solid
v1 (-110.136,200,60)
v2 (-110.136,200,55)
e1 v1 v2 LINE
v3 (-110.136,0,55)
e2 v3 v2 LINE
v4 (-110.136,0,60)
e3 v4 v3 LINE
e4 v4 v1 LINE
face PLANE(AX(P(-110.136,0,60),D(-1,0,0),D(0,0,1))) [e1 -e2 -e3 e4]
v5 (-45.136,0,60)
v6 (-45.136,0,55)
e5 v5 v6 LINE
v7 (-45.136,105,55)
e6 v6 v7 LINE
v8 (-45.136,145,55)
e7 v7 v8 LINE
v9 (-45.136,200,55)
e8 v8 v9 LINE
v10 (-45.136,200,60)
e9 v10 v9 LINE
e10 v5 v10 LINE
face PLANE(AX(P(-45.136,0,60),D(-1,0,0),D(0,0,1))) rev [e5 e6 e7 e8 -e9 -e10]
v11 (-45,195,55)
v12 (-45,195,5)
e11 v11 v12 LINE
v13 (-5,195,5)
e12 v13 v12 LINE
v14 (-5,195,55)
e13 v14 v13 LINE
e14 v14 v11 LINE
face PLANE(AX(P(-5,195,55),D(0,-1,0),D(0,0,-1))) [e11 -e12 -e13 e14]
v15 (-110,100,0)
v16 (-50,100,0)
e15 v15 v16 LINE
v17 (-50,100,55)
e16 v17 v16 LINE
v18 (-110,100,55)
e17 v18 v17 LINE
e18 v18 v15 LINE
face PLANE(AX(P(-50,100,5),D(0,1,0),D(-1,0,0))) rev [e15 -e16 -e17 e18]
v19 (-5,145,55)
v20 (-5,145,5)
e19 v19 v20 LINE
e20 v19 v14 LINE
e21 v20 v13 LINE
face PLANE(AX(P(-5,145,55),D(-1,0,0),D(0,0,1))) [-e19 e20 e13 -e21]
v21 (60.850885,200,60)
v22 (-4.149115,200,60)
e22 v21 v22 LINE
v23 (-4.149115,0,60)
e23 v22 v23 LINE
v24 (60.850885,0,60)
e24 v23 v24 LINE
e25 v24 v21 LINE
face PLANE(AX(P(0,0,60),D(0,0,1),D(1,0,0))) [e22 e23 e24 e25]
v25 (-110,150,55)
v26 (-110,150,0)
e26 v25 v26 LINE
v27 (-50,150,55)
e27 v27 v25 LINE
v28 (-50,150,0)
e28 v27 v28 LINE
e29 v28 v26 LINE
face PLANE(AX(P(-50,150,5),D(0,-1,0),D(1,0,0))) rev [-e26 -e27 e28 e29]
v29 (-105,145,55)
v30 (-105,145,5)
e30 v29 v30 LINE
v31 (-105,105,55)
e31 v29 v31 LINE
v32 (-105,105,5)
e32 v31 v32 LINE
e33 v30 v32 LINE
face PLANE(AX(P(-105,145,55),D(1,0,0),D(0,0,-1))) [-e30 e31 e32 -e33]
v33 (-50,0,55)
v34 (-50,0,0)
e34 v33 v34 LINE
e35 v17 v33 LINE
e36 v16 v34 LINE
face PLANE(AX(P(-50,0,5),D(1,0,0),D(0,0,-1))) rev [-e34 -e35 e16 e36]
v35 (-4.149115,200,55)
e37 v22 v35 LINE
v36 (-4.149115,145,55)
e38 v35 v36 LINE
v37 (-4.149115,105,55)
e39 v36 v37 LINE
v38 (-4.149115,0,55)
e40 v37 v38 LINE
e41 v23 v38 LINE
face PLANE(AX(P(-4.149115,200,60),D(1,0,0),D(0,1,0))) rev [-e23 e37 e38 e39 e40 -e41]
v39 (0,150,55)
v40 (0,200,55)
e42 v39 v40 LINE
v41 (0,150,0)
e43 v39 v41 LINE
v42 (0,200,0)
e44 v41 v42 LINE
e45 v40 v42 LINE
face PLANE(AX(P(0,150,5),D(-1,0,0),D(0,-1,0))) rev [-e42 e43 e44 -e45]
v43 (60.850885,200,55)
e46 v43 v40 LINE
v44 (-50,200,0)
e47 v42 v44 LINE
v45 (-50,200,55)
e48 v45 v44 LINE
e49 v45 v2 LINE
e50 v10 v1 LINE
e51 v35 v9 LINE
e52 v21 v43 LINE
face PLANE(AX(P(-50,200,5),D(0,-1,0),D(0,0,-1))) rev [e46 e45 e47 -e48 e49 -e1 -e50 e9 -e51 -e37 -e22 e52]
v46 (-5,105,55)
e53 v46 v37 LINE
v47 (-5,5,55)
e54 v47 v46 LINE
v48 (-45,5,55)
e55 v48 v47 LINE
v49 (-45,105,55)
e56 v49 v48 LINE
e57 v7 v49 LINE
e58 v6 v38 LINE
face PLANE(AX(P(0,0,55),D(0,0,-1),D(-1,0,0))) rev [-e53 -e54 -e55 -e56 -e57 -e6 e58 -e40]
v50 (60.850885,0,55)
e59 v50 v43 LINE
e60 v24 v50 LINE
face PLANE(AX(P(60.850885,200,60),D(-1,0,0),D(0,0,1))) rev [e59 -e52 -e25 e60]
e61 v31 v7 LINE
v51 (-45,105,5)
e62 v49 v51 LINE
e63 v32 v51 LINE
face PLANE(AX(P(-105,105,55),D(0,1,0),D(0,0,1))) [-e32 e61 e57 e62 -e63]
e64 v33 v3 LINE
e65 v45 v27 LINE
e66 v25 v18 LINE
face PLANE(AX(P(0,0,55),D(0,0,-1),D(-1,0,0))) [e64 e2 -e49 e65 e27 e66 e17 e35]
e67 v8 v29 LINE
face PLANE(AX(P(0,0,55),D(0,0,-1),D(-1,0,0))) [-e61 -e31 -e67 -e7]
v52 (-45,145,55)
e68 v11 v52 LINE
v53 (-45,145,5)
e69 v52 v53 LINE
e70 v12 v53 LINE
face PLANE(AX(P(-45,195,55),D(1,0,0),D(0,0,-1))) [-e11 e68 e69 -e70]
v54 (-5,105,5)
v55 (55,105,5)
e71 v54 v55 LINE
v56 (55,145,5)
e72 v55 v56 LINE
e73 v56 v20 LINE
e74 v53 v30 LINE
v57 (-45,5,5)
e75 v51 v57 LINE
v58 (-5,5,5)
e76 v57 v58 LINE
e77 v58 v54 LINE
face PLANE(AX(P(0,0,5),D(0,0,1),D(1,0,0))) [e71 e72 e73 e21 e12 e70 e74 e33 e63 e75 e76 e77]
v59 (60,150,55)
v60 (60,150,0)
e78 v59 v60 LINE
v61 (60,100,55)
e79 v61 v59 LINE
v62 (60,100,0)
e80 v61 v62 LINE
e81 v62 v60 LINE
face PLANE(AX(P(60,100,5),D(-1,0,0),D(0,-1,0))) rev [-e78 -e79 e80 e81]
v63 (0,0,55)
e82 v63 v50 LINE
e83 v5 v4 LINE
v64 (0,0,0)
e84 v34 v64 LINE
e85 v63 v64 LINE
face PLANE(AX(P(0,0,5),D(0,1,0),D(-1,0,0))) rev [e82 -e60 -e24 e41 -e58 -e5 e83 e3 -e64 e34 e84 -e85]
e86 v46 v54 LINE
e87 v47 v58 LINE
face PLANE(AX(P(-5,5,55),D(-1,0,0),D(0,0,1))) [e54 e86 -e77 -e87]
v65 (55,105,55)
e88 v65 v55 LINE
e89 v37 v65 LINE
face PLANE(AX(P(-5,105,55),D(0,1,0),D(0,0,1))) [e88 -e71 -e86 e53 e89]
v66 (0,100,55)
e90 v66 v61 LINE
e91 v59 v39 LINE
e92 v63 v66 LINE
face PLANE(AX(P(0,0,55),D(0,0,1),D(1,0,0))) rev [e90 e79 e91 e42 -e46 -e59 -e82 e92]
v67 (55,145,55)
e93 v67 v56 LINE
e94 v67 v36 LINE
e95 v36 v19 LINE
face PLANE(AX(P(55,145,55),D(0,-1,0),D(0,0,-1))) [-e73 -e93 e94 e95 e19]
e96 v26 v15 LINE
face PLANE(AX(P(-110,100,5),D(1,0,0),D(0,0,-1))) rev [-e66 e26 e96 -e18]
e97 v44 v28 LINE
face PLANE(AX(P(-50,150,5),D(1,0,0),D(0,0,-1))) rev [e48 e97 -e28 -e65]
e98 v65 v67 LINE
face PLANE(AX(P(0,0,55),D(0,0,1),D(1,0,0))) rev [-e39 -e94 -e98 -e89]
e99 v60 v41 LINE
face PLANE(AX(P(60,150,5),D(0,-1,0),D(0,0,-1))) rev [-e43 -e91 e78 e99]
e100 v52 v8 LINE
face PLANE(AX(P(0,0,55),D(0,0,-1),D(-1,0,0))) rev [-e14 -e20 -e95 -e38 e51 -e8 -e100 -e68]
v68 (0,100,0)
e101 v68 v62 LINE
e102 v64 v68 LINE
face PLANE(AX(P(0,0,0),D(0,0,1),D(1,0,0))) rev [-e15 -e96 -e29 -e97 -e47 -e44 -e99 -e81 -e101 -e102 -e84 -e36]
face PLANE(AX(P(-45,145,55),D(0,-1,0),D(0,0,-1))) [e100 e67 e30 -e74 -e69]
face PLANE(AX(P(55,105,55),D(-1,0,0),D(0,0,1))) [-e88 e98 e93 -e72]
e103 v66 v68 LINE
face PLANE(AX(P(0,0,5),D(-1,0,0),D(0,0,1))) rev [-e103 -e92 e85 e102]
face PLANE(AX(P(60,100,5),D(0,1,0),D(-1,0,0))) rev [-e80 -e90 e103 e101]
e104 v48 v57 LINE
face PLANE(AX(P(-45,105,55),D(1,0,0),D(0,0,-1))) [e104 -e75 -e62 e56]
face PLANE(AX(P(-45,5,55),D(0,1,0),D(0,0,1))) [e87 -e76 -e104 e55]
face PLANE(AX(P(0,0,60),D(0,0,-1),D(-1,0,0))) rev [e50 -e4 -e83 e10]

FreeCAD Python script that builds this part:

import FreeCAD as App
import Part
import Sketcher

V = App.Vector

doc = App.newDocument("Part")
body = doc.addObject("PartDesign::Body", "Body")

# Sketch on XY plane
sketch1 = doc.addObject("Sketcher::SketchObject", "Sketch")
body.addObject(sketch1)
sketch1.AttachmentSupport = (doc.XY_Plane, [""])
sketch1.MapMode = "FlatFace"
sketch1.addGeometry(Part.LineSegment(V(-110, 100, 0), V(-50, 100, 0)), False)
sketch1.addGeometry(Part.LineSegment(V(-50, 100, 0), V(-50, 0, 0)), False)
sketch1.addGeometry(Part.LineSegment(V(-50, 0, 0), V(0, 0, 0)), False)
sketch1.addGeometry(Part.LineSegment(V(0, 0, 0), V(0, 100, 0)), False)
sketch1.addGeometry(Part.LineSegment(V(0, 100, 0), V(60, 100, 0)), False)
sketch1.addGeometry(Part.LineSegment(V(60, 100, 0), V(60, 150, 0)), False)
sketch1.addGeometry(Part.LineSegment(V(60, 150, 0), V(0, 150, 0)), False)
sketch1.addGeometry(Part.LineSegment(V(0, 150, 0), V(0, 200, 0)), False)
sketch1.addGeometry(Part.LineSegment(V(0, 200, 0), V(-50, 200, 0)), False)
sketch1.addGeometry(Part.LineSegment(V(-50, 200, 0), V(-50, 150, 0)), False)
sketch1.addGeometry(Part.LineSegment(V(-50, 150, 0), V(-110, 150, 0)), False)
sketch1.addGeometry(Part.LineSegment(V(-110, 150, 0), V(-110, 100, 0)), False)
sketch1.addConstraint(Sketcher.Constraint("Coincident", 0, 2, 1, 1))
sketch1.addConstraint(Sketcher.Constraint("Coincident", 1, 2, 2, 1))
sketch1.addConstraint(Sketcher.Constraint("Coincident", 2, 2, 3, 1))
sketch1.addConstraint(Sketcher.Constraint("Coincident", 3, 2, 4, 1))
sketch1.addConstraint(Sketcher.Constraint("Coincident", 4, 2, 5, 1))
sketch1.addConstraint(Sketcher.Constraint("Coincident", 5, 2, 6, 1))
sketch1.addConstraint(Sketcher.Constraint("Coincident", 6, 2, 7, 1))
sketch1.addConstraint(Sketcher.Constraint("Coincident", 7, 2, 8, 1))
sketch1.addConstraint(Sketcher.Constraint("Coincident", 8, 2, 9, 1))
sketch1.addConstraint(Sketcher.Constraint("Coincident", 9, 2, 10, 1))
sketch1.addConstraint(Sketcher.Constraint("Coincident", 10, 2, 11, 1))
sketch1.addConstraint(Sketcher.Constraint("Coincident", 11, 2, 0, 1))
sketch1.addConstraint(Sketcher.Constraint("Horizontal", 0))
sketch1.addConstraint(Sketcher.Constraint("Vertical", 1))
sketch1.addConstraint(Sketcher.Constraint("Horizontal", 2))
sketch1.addConstraint(Sketcher.Constraint("Vertical", 3))
sketch1.addConstraint(Sketcher.Constraint("Horizontal", 4))
sketch1.addConstraint(Sketcher.Constraint("Vertical", 5))
sketch1.addConstraint(Sketcher.Constraint("Horizontal", 6))
sketch1.addConstraint(Sketcher.Constraint("Vertical", 7))
sketch1.addConstraint(Sketcher.Constraint("Horizontal", 8))
sketch1.addConstraint(Sketcher.Constraint("Vertical", 9))
sketch1.addConstraint(Sketcher.Constraint("Horizontal", 10))
sketch1.addConstraint(Sketcher.Constraint("Vertical", 11))
sketch1.addConstraint(Sketcher.Constraint("Coincident", 2, 2, -1, 1))
sketch1.addConstraint(Sketcher.Constraint("PointOnObject", 6, 2, -2))
sketch1.addConstraint(Sketcher.Constraint("Horizontal", 0, 2, 3, 2))
sketch1.addConstraint(Sketcher.Constraint("Horizontal", 6, 2, 9, 2))
sketch1.addConstraint(Sketcher.Constraint("Vertical", 1, 2, 8, 2))
sketch1.addConstraint(Sketcher.Constraint("Equal", 0, 4))
sketch1.addConstraint(Sketcher.Constraint("Equal", 8, 5))
sketch1.addConstraint(Sketcher.Constraint("Equal", 5, 7))
sketch1.addConstraint(Sketcher.Constraint("DistanceX", 0, 1, 0, 2, 60.0))
sketch1.addConstraint(Sketcher.Constraint("DistanceX", 2, 1, 2, 2, 50.0))
sketch1.addConstraint(Sketcher.Constraint("DistanceY", 1, 2, 1, 1, 100.0))
pad1 = doc.addObject("PartDesign::Pad", "Pad")
body.addObject(pad1)
pad1.Profile = sketch1
pad1.Length = 5

# Sketch on XY plane
sketch2 = doc.addObject("Sketcher::SketchObject", "Sketch001")
body.addObject(sketch2)
sketch2.AttachmentSupport = (doc.XY_Plane, [""])
sketch2.MapMode = "FlatFace"
sketch2.AttachmentOffset = App.Placement(V(0, 0, 5), App.Rotation())
sketch2.addGeometry(Part.LineSegment(V(-110, 150, 0), V(-110, 100, 0)), False)
sketch2.addGeometry(Part.LineSegment(V(-110, 100, 0), V(-50, 100, 0)), False)
sketch2.addGeometry(Part.LineSegment(V(-50, 100, 0), V(-50, 0, 0)), False)
sketch2.addGeometry(Part.LineSegment(V(-50, 0, 0), V(0, 0, 0)), False)
sketch2.addGeometry(Part.LineSegment(V(0, 0, 0), V(0, 100, 0)), False)
sketch2.addGeometry(Part.LineSegment(V(0, 100, 0), V(60, 100, 0)), False)
sketch2.addGeometry(Part.LineSegment(V(60, 100, 0), V(60, 150, 0)), False)
sketch2.addGeometry(Part.LineSegment(V(60, 150, 0), V(0, 150, 0)), False)
sketch2.addGeometry(Part.LineSegment(V(0, 150, 0), V(0, 200, 0)), False)
sketch2.addGeometry(Part.LineSegment(V(0, 200, 0), V(-50, 200, 0)), False)
sketch2.addGeometry(Part.LineSegment(V(-50, 200, 0), V(-50, 150, 0)), False)
sketch2.addGeometry(Part.LineSegment(V(-50, 150, 0), V(-110, 150, 0)), False)
sketch2.addGeometry(Part.LineSegment(V(-105, 105, 0), V(-105, 145, 0)), False)
sketch2.addGeometry(Part.LineSegment(V(-105, 145, 0), V(-45, 145, 0)), False)
sketch2.addGeometry(Part.LineSegment(V(-45, 145, 0), V(-45, 195, 0)), False)
sketch2.addGeometry(Part.LineSegment(V(-45, 195, 0), V(-5, 195, 0)), False)
sketch2.addGeometry(Part.LineSegment(V(-5, 195, 0), V(-5, 145, 0)), False)
sketch2.addGeometry(Part.LineSegment(V(-5, 145, 0), V(55, 145, 0)), False)
sketch2.addGeometry(Part.LineSegment(V(55, 145, 0), V(55, 105, 0)), False)
sketch2.addGeometry(Part.LineSegment(V(55, 105, 0), V(-5, 105, 0)), False)
sketch2.addGeometry(Part.LineSegment(V(-5, 105, 0), V(-5, 5, 0)), False)
sketch2.addGeometry(Part.LineSegment(V(-5, 5, 0), V(-45, 5, 0)), False)
sketch2.addGeometry(Part.LineSegment(V(-45, 5, 0), V(-45, 105, 0)), False)
sketch2.addGeometry(Part.LineSegment(V(-45, 105, 0), V(-105, 105, 0)), False)
sketch2.addConstraint(Sketcher.Constraint("Coincident", 0, 2, 1, 1))
sketch2.addConstraint(Sketcher.Constraint("Coincident", 1, 2, 2, 1))
sketch2.addConstraint(Sketcher.Constraint("Coincident", 2, 2, 3, 1))
sketch2.addConstraint(Sketcher.Constraint("Coincident", 3, 2, 4, 1))
sketch2.addConstraint(Sketcher.Constraint("Coincident", 4, 2, 5, 1))
sketch2.addConstraint(Sketcher.Constraint("Coincident", 5, 2, 6, 1))
sketch2.addConstraint(Sketcher.Constraint("Coincident", 6, 2, 7, 1))
sketch2.addConstraint(Sketcher.Constraint("Coincident", 7, 2, 8, 1))
sketch2.addConstraint(Sketcher.Constraint("Coincident", 8, 2, 9, 1))
sketch2.addConstraint(Sketcher.Constraint("Coincident", 9, 2, 10, 1))
sketch2.addConstraint(Sketcher.Constraint("Coincident", 10, 2, 11, 1))
sketch2.addConstraint(Sketcher.Constraint("Coincident", 11, 2, 0, 1))
sketch2.addConstraint(Sketcher.Constraint("Coincident", 12, 2, 13, 1))
sketch2.addConstraint(Sketcher.Constraint("Coincident", 13, 2, 14, 1))
sketch2.addConstraint(Sketcher.Constraint("Coincident", 14, 2, 15, 1))
sketch2.addConstraint(Sketcher.Constraint("Coincident", 15, 2, 16, 1))
sketch2.addConstraint(Sketcher.Constraint("Coincident", 16, 2, 17, 1))
sketch2.addConstraint(Sketcher.Constraint("Coincident", 17, 2, 18, 1))
sketch2.addConstraint(Sketcher.Constraint("Coincident", 18, 2, 19, 1))
sketch2.addConstraint(Sketcher.Constraint("Coincident", 19, 2, 20, 1))
sketch2.addConstraint(Sketcher.Constraint("Coincident", 20, 2, 21, 1))
sketch2.addConstraint(Sketcher.Constraint("Coincident", 21, 2, 22, 1))
sketch2.addConstraint(Sketcher.Constraint("Coincident", 22, 2, 23, 1))
sketch2.addConstraint(Sketcher.Constraint("Coincident", 23, 2, 12, 1))
sketch2.addConstraint(Sketcher.Constraint("Vertical", 0))
sketch2.addConstraint(Sketcher.Constraint("Horizontal", 1))
sketch2.addConstraint(Sketcher.Constraint("Vertical", 2))
sketch2.addConstraint(Sketcher.Constraint("Horizontal", 3))
sketch2.addConstraint(Sketcher.Constraint("Vertical", 4))
sketch2.addConstraint(Sketcher.Constraint("Horizontal", 5))
sketch2.addConstraint(Sketcher.Constraint("Vertical", 6))
sketch2.addConstraint(Sketcher.Constraint("Horizontal", 7))
sketch2.addConstraint(Sketcher.Constraint("Vertical", 8))
sketch2.addConstraint(Sketcher.Constraint("Horizontal", 9))
sketch2.addConstraint(Sketcher.Constraint("Vertical", 10))
sketch2.addConstraint(Sketcher.Constraint("Horizontal", 11))
sketch2.addConstraint(Sketcher.Constraint("Vertical", 12))
sketch2.addConstraint(Sketcher.Constraint("Horizontal", 13))
sketch2.addConstraint(Sketcher.Constraint("Vertical", 14))
sketch2.addConstraint(Sketcher.Constraint("Horizontal", 15))
sketch2.addConstraint(Sketcher.Constraint("Vertical", 16))
sketch2.addConstraint(Sketcher.Constraint("Horizontal", 17))
sketch2.addConstraint(Sketcher.Constraint("Vertical", 18))
sketch2.addConstraint(Sketcher.Constraint("Horizontal", 19))
sketch2.addConstraint(Sketcher.Constraint("Vertical", 20))
sketch2.addConstraint(Sketcher.Constraint("Horizontal", 21))
sketch2.addConstraint(Sketcher.Constraint("Vertical", 22))
sketch2.addConstraint(Sketcher.Constraint("Horizontal", 23))
sketch2.addConstraint(Sketcher.Constraint("Coincident", 3, 2, -1, 1))
sketch2.addConstraint(Sketcher.Constraint("PointOnObject", 7, 2, -2))
sketch2.addConstraint(Sketcher.Constraint("Horizontal", 1, 2, 4, 2))
sketch2.addConstraint(Sketcher.Constraint("Horizontal", 7, 2, 10, 2))
sketch2.addConstraint(Sketcher.Constraint("Horizontal", 13, 2, 16, 2))
sketch2.addConstraint(Sketcher.Constraint("Horizontal", 19, 2, 22, 2))
sketch2.addConstraint(Sketcher.Constraint("Vertical", 2, 2, 9, 2))
sketch2.addConstraint(Sketcher.Constraint("Vertical", 16, 2, 19, 2))
sketch2.addConstraint(Sketcher.Constraint("Vertical", 14, 2, 21, 2))
sketch2.addConstraint(Sketcher.Constraint("Equal", 1, 5))
sketch2.addConstraint(Sketcher.Constraint("Equal", 11, 13))
sketch2.addConstraint(Sketcher.Constraint("Equal", 13, 17))
sketch2.addConstraint(Sketcher.Constraint("Equal", 9, 0))
sketch2.addConstraint(Sketcher.Constraint("Equal", 6, 8))
sketch2.addConstraint(Sketcher.Constraint("Equal", 21, 12))
sketch2.addConstraint(Sketcher.Constraint("Equal", 10, 14))
sketch2.addConstraint(Sketcher.Constraint("Equal", 4, 20))
sketch2.addConstraint(Sketcher.Constraint("DistanceX", 1, 1, 1, 2, 60.0))
sketch2.addConstraint(Sketcher.Constraint("DistanceX", 3, 1, 3, 2, 50.0))
sketch2.addConstraint(Sketcher.Constraint("DistanceX", 15, 1, 15, 2, 40.0))
sketch2.addConstraint(Sketcher.Constraint("DistanceY", 2, 2, 2, 1, 100.0))
sketch2.addConstraint(Sketcher.Constraint("DistanceX", 12, 2, -1, 1, 105.0))
sketch2.addConstraint(Sketcher.Constraint("DistanceY", -1, 1, 12, 2, 145.0))
pad2 = doc.addObject("PartDesign::Pad", "Pad001")
body.addObject(pad2)
pad2.Profile = sketch2
pad2.Length = 50

# Sketch on XY plane
sketch3 = doc.addObject("Sketcher::SketchObject", "Sketch002")
body.addObject(sketch3)
sketch3.AttachmentSupport = (doc.XY_Plane, [""])
sketch3.MapMode = "FlatFace"
sketch3.AttachmentOffset = App.Placement(V(0, 0, 55), App.Rotation())
sketch3.addGeometry(Part.LineSegment(V(-110, 200, 0), V(-110, 0, 0)), False)
sketch3.addGeometry(Part.LineSegment(V(-110, 0, 0), V(-45, 0, 0)), False)
sketch3.addGeometry(Part.LineSegment(V(-45, 0, 0), V(-45, 200, 0)), False)
sketch3.addGeometry(Part.LineSegment(V(-45, 200, 0), V(-110, 200, 0)), False)
sketch3.addConstraint(Sketcher.Constraint("Coincident", 0, 2, 1, 1))
sketch3.addConstraint(Sketcher.Constraint("Coincident", 1, 2, 2, 1))
sketch3.addConstraint(Sketcher.Constraint("Coincident", 2, 2, 3, 1))
sketch3.addConstraint(Sketcher.Constraint("Coincident", 3, 2, 0, 1))
sketch3.addConstraint(Sketcher.Constraint("Vertical", 0))
sketch3.addConstraint(Sketcher.Constraint("Horizontal", 1))
sketch3.addConstraint(Sketcher.Constraint("Vertical", 2))
sketch3.addConstraint(Sketcher.Constraint("Horizontal", 3))
sketch3.addConstraint(Sketcher.Constraint("PointOnObject", 0, 2, -1))
sketch3.addConstraint(Sketcher.Constraint("DistanceX", 1, 1, 1, 2, 65.0))
sketch3.addConstraint(Sketcher.Constraint("DistanceY", 0, 2, 0, 1, 200.0))
sketch3.addConstraint(Sketcher.Constraint("DistanceX", 0, 2, -1, 1, 110.136))
pad3 = doc.addObject("PartDesign::Pad", "Pad002")
body.addObject(pad3)
pad3.Profile = sketch3
pad3.Length = 5

# Sketch on XY plane
sketch4 = doc.addObject("Sketcher::SketchObject", "Sketch003")
body.addObject(sketch4)
sketch4.AttachmentSupport = (doc.XY_Plane, [""])
sketch4.MapMode = "FlatFace"
sketch4.AttachmentOffset = App.Placement(V(0, 0, 55), App.Rotation())
sketch4.addGeometry(Part.LineSegment(V(-4, 200, 0), V(-4, 0, 0)), False)
sketch4.addGeometry(Part.LineSegment(V(-4, 0, 0), V(61, 0, 0)), False)
sketch4.addGeometry(Part.LineSegment(V(61, 0, 0), V(61, 200, 0)), False)
sketch4.addGeometry(Part.LineSegment(V(61, 200, 0), V(-4, 200, 0)), False)
sketch4.addConstraint(Sketcher.Constraint("Coincident", 0, 2, 1, 1))
sketch4.addConstraint(Sketcher.Constraint("Coincident", 1, 2, 2, 1))
sketch4.addConstraint(Sketcher.Constraint("Coincident", 2, 2, 3, 1))
sketch4.addConstraint(Sketcher.Constraint("Coincident", 3, 2, 0, 1))
sketch4.addConstraint(Sketcher.Constraint("Vertical", 0))
sketch4.addConstraint(Sketcher.Constraint("Horizontal", 1))
sketch4.addConstraint(Sketcher.Constraint("Vertical", 2))
sketch4.addConstraint(Sketcher.Constraint("Horizontal", 3))
sketch4.addConstraint(Sketcher.Constraint("PointOnObject", 0, 2, -1))
sketch4.addConstraint(Sketcher.Constraint("DistanceX", 1, 1, 1, 2, 65.0))
sketch4.addConstraint(Sketcher.Constraint("DistanceY", 0, 2, 0, 1, 200.0))
sketch4.addConstraint(Sketcher.Constraint("DistanceX", 0, 2, -1, 1, 4.149115))
pad4 = doc.addObject("PartDesign::Pad", "Pad003")
body.addObject(pad4)
pad4.Profile = sketch4
pad4.Length = 5

doc.recompute()
